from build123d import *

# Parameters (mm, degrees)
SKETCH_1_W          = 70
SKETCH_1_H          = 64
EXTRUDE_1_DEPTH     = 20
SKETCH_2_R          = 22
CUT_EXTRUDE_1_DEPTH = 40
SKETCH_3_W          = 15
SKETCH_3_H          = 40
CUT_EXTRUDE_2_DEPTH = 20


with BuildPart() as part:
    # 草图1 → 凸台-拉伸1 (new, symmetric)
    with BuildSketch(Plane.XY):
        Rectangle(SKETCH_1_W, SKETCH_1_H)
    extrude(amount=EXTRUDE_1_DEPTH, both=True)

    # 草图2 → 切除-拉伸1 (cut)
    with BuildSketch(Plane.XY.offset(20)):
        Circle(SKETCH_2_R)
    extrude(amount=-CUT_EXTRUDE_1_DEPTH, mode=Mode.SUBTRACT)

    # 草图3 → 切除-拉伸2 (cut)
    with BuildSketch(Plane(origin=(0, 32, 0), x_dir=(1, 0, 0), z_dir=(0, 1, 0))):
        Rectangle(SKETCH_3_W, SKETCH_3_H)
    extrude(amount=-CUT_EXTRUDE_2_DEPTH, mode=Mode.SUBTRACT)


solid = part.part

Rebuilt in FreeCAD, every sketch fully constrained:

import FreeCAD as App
import Part
import Sketcher
from FreeCAD import Vector
Q = App.Units.Quantity


def add_polygon(sketch, points):
    """Adds a closed chain of lines whose ends are joined by coincident constraints."""
    first, n = sketch.GeometryCount, len(points)
    for a, b in zip(points, points[1:] + points[:1]):
        sketch.addGeometry(Part.LineSegment(App.Vector(*a, 0), App.Vector(*b, 0)), False)
    for i in range(n):
        sketch.addConstraint(Sketcher.Constraint("Coincident", first + i, 2, first + (i + 1) % n, 1))

doc = App.newDocument("Part")
params = doc.addObject("Spreadsheet::Sheet", "Params")
for row, (alias, value) in enumerate([
    ("sketch1_width", "70 mm"),
    ("sketch1_height", "64 mm"),
    ("pad1_length", "40 mm"),
    ("sketch2_diameter", "44 mm"),
    ("pocket1_length", "40 mm"),
    ("sketch3_width", "15 mm"),
    ("sketch3_height", "40 mm"),
    ("pocket2_length", "20 mm"),
], start=1):
    params.set(f"A{row}", alias)
    params.set(f"B{row}", "=" + value)
    params.setAlias(f"B{row}", alias)

body = doc.addObject("PartDesign::Body", "Body")

# Sketch on XY plane
sketch1 = body.newObject("Sketcher::SketchObject", "Sketch")
sketch1.AttachmentSupport = (doc.getObject("XY_Plane"), [""])
sketch1.MapMode = "FlatFace"
add_polygon(sketch1, [(-35, 32), (-35, -32), (35, -32), (35, 32)])  # lines 0-3
sketch1.addConstraint(Sketcher.Constraint("Vertical", 0))
sketch1.addConstraint(Sketcher.Constraint("Horizontal", 1))
sketch1.addConstraint(Sketcher.Constraint("Vertical", 2))
sketch1.addConstraint(Sketcher.Constraint("Horizontal", 3))
sketch1.addConstraint(Sketcher.Constraint("Symmetric", 0, 2, 2, 2, -1, 1))
sketch1.addConstraint(Sketcher.Constraint("DistanceX", 1, 1, 1, 2, Q("70 mm")))
sketch1.addConstraint(Sketcher.Constraint("DistanceY", 0, 2, 0, 1, Q("64 mm")))
sketch1.setExpression("Constraints[9]", "Params.sketch1_width")
sketch1.setExpression("Constraints[10]", "Params.sketch1_height")
pad1 = body.newObject("PartDesign::Pad", "Pad")
pad1.Profile = sketch1
pad1.setExpression("Length", "Params.pad1_length")
pad1.Midplane = True

# Sketch on XY plane
sketch2 = body.newObject("Sketcher::SketchObject", "Sketch001")
sketch2.AttachmentSupport = (doc.getObject("XY_Plane"), [""])
sketch2.MapMode = "FlatFace"
sketch2.AttachmentOffset = App.Placement(Vector(0, 0, 20), App.Rotation())
sketch2.addGeometry(Part.Circle(Vector(0, 0, 0), Vector(0, 0, 1), 22), False)
sketch2.addConstraint(Sketcher.Constraint("Coincident", 0, 3, -1, 1))
sketch2.addConstraint(Sketcher.Constraint("Diameter", 0, Q("44 mm")))
sketch2.setExpression("Constraints[1]", "Params.sketch2_diameter")
pocket1 = body.newObject("PartDesign::Pocket", "Pocket")
pocket1.Profile = sketch2
pocket1.setExpression("Length", "Params.pocket1_length")

# Sketch on XZ plane
sketch3 = body.newObject("Sketcher::SketchObject", "Sketch002")
sketch3.AttachmentSupport = (doc.getObject("XZ_Plane"), [""])
sketch3.MapMode = "FlatFace"
sketch3.AttachmentOffset = App.Placement(Vector(0, 0, -32), App.Rotation())
add_polygon(sketch3, [(-8, -20), (-8, 20), (8, 20), (8, -20)])  # lines 0-3
sketch3.addConstraint(Sketcher.Constraint("Vertical", 0))
sketch3.addConstraint(Sketcher.Constraint("Horizontal", 1))
sketch3.addConstraint(Sketcher.Constraint("Vertical", 2))
sketch3.addConstraint(Sketcher.Constraint("Horizontal", 3))
sketch3.addConstraint(Sketcher.Constraint("Symmetric", 0, 2, 2, 2, -1, 1))
sketch3.addConstraint(Sketcher.Constraint("DistanceX", 1, 1, 1, 2, Q("15 mm")))
sketch3.addConstraint(Sketcher.Constraint("DistanceY", 0, 1, 0, 2, Q("40 mm")))
sketch3.setExpression("Constraints[9]", "Params.sketch3_width")
sketch3.setExpression("Constraints[10]", "Params.sketch3_height")
pocket2 = body.newObject("PartDesign::Pocket", "Pocket001")
pocket2.Profile = sketch3
pocket2.setExpression("Length", "Params.pocket2_length")
pocket2.Reversed = True

doc.recompute()
